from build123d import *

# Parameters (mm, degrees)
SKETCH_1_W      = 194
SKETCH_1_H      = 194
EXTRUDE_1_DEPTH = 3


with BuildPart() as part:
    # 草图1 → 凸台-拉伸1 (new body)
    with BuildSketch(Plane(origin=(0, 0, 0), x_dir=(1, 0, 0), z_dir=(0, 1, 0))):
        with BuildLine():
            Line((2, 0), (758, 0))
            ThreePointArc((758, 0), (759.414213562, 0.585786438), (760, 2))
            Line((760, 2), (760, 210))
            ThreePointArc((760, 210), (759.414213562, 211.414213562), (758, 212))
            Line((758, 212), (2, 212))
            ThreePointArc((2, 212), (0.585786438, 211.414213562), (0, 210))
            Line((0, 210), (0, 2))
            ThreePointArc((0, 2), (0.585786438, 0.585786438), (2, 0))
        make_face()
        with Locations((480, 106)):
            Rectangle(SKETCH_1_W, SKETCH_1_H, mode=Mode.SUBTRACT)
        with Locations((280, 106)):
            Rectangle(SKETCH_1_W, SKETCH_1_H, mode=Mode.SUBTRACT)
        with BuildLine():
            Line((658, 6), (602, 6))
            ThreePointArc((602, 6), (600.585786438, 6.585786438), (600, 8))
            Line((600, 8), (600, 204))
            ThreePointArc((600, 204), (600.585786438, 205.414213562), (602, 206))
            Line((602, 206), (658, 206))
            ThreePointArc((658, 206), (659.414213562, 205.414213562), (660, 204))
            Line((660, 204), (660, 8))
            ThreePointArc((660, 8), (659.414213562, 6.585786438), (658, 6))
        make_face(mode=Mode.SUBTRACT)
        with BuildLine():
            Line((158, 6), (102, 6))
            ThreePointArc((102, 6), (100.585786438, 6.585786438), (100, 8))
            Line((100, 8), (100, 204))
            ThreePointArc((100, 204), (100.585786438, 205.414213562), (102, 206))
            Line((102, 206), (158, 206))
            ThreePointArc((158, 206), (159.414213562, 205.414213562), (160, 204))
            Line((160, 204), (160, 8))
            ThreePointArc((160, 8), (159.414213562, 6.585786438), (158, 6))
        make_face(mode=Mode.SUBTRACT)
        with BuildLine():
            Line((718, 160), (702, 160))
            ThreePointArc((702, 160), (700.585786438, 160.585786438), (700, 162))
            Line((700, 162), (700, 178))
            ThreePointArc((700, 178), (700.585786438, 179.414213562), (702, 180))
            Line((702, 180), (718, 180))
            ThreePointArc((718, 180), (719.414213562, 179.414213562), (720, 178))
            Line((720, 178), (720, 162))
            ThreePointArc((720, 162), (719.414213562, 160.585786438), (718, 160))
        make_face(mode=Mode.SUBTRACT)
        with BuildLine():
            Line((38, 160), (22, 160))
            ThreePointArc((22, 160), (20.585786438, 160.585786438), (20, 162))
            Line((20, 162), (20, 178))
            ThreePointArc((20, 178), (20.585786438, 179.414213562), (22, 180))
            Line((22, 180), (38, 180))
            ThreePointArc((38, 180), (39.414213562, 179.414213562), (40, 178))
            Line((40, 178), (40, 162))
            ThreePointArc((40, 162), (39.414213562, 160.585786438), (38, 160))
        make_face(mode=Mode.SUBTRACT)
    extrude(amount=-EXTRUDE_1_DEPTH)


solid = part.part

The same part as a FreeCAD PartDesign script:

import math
import FreeCAD as App
import Part
import Sketcher

V = App.Vector
Q = App.Units.Quantity


def add_polygon(sketch, points):
    """Adds a closed chain of lines whose ends are joined by coincident constraints."""
    first, n = sketch.GeometryCount, len(points)
    for a, b in zip(points, points[1:] + points[:1]):
        sketch.addGeometry(Part.LineSegment(App.Vector(*a, 0), App.Vector(*b, 0)), False)
    for i in range(n):
        sketch.addConstraint(Sketcher.Constraint("Coincident", first + i, 2, first + (i + 1) % n, 1))

doc = App.newDocument("Part")
body = doc.addObject("PartDesign::Body", "Body")

sketch1 = body.newObject("Sketcher::SketchObject", "Sketch")
sketch1.AttachmentSupport = (doc.getObject("XZ_Plane"), [""])
sketch1.MapMode = "FlatFace"
sketch1.addGeometry(Part.LineSegment(V(2, 0, 0), V(758, 0, 0)), False)
sketch1.addGeometry(Part.ArcOfCircle(Part.Circle(V(758, -2, 0), V(0, 0, 1), 2), math.radians(0), math.radians(90)), False)
sketch1.addGeometry(Part.LineSegment(V(760, -2, 0), V(760, -210, 0)), False)
sketch1.addGeometry(Part.ArcOfCircle(Part.Circle(V(758, -210, 0), V(0, 0, 1), 2), math.radians(-90), math.radians(0)), False)
sketch1.addGeometry(Part.LineSegment(V(758, -212, 0), V(2, -212, 0)), False)
sketch1.addGeometry(Part.ArcOfCircle(Part.Circle(V(2, -210, 0), V(0, 0, 1), 2), math.radians(-180), math.radians(-90)), False)
sketch1.addGeometry(Part.LineSegment(V(0, -210, 0), V(0, -2, 0)), False)
sketch1.addGeometry(Part.ArcOfCircle(Part.Circle(V(2, -2, 0), V(0, 0, 1), 2), math.radians(90), math.radians(180)), False)
sketch1.addGeometry(Part.ArcOfCircle(Part.Circle(V(158, -8, 0), V(0, 0, 1), 2), math.radians(0), math.radians(90)), False)
sketch1.addGeometry(Part.LineSegment(V(158, -6, 0), V(102, -6, 0)), False)
sketch1.addGeometry(Part.ArcOfCircle(Part.Circle(V(102, -8, 0), V(0, 0, 1), 2), math.radians(90), math.radians(180)), False)
sketch1.addGeometry(Part.LineSegment(V(100, -8, 0), V(100, -204, 0)), False)
sketch1.addGeometry(Part.ArcOfCircle(Part.Circle(V(102, -204, 0), V(0, 0, 1), 2), math.radians(-180), math.radians(-90)), False)
sketch1.addGeometry(Part.LineSegment(V(102, -206, 0), V(158, -206, 0)), False)
sketch1.addGeometry(Part.ArcOfCircle(Part.Circle(V(158, -204, 0), V(0, 0, 1), 2), math.radians(-90), math.radians(0)), False)
sketch1.addGeometry(Part.LineSegment(V(160, -204, 0), V(160, -8, 0)), False)
add_polygon(sketch1, [(377, -9), (183, -9), (183, -203), (377, -203)])
sketch1.addGeometry(Part.ArcOfCircle(Part.Circle(V(38, -162, 0), V(0, 0, 1), 2), math.radians(0), math.radians(90)), False)
sketch1.addGeometry(Part.LineSegment(V(38, -160, 0), V(22, -160, 0)), False)
sketch1.addGeometry(Part.ArcOfCircle(Part.Circle(V(22, -162, 0), V(0, 0, 1), 2), math.radians(90), math.radians(180)), False)
sketch1.addGeometry(Part.LineSegment(V(20, -162, 0), V(20, -178, 0)), False)
sketch1.addGeometry(Part.ArcOfCircle(Part.Circle(V(22, -178, 0), V(0, 0, 1), 2), math.radians(-180), math.radians(-90)), False)
sketch1.addGeometry(Part.LineSegment(V(22, -180, 0), V(38, -180, 0)), False)
sketch1.addGeometry(Part.ArcOfCircle(Part.Circle(V(38, -178, 0), V(0, 0, 1), 2), math.radians(-90), math.radians(0)), False)
sketch1.addGeometry(Part.LineSegment(V(40, -178, 0), V(40, -162, 0)), False)
add_polygon(sketch1, [(577, -9), (383, -9), (383, -203), (577, -203)])
sketch1.addGeometry(Part.ArcOfCircle(Part.Circle(V(658, -8, 0), V(0, 0, 1), 2), math.radians(0), math.radians(90)), False)
sketch1.addGeometry(Part.LineSegment(V(658, -6, 0), V(602, -6, 0)), False)
sketch1.addGeometry(Part.ArcOfCircle(Part.Circle(V(602, -8, 0), V(0, 0, 1), 2), math.radians(90), math.radians(180)), False)
sketch1.addGeometry(Part.LineSegment(V(600, -8, 0), V(600, -204, 0)), False)
sketch1.addGeometry(Part.ArcOfCircle(Part.Circle(V(602, -204, 0), V(0, 0, 1), 2), math.radians(-180), math.radians(-90)), False)
sketch1.addGeometry(Part.LineSegment(V(602, -206, 0), V(658, -206, 0)), False)
sketch1.addGeometry(Part.ArcOfCircle(Part.Circle(V(658, -204, 0), V(0, 0, 1), 2), math.radians(-90), math.radians(0)), False)
sketch1.addGeometry(Part.LineSegment(V(660, -204, 0), V(660, -8, 0)), False)
sketch1.addGeometry(Part.ArcOfCircle(Part.Circle(V(718, -162, 0), V(0, 0, 1), 2), math.radians(0), math.radians(90)), False)
sketch1.addGeometry(Part.LineSegment(V(718, -160, 0), V(702, -160, 0)), False)
sketch1.addGeometry(Part.ArcOfCircle(Part.Circle(V(702, -162, 0), V(0, 0, 1), 2), math.radians(90), math.radians(180)), False)
sketch1.addGeometry(Part.LineSegment(V(700, -162, 0), V(700, -178, 0)), False)
sketch1.addGeometry(Part.ArcOfCircle(Part.Circle(V(702, -178, 0), V(0, 0, 1), 2), math.radians(-180), math.radians(-90)), False)
sketch1.addGeometry(Part.LineSegment(V(702, -180, 0), V(718, -180, 0)), False)
sketch1.addGeometry(Part.ArcOfCircle(Part.Circle(V(718, -178, 0), V(0, 0, 1), 2), math.radians(-90), math.radians(0)), False)
sketch1.addGeometry(Part.LineSegment(V(720, -178, 0), V(720, -162, 0)), False)
sketch1.addConstraint([
    Sketcher.Constraint("Tangent", 0, 2, 1, 2),
    Sketcher.Constraint("Tangent", 1, 1, 2, 1),
    Sketcher.Constraint("Tangent", 2, 2, 3, 2),
    Sketcher.Constraint("Tangent", 3, 1, 4, 1),
    Sketcher.Constraint("Tangent", 4, 2, 5, 2),
    Sketcher.Constraint("Tangent", 5, 1, 6, 1),
    Sketcher.Constraint("Tangent", 6, 2, 7, 2),
    Sketcher.Constraint("Tangent", 7, 1, 0, 1),
    Sketcher.Constraint("Tangent", 8, 2, 9, 1),
    Sketcher.Constraint("Tangent", 9, 2, 10, 1),
    Sketcher.Constraint("Tangent", 10, 2, 11, 1),
    Sketcher.Constraint("Tangent", 11, 2, 12, 1),
    Sketcher.Constraint("Tangent", 12, 2, 13, 1),
    Sketcher.Constraint("Tangent", 13, 2, 14, 1),
    Sketcher.Constraint("Tangent", 14, 2, 15, 1),
    Sketcher.Constraint("Tangent", 15, 2, 8, 1),
    Sketcher.Constraint("Tangent", 20, 2, 21, 1),
    Sketcher.Constraint("Tangent", 21, 2, 22, 1),
    Sketcher.Constraint("Tangent", 22, 2, 23, 1),
    Sketcher.Constraint("Tangent", 23, 2, 24, 1),
    Sketcher.Constraint("Tangent", 24, 2, 25, 1),
    Sketcher.Constraint("Tangent", 25, 2, 26, 1),
    Sketcher.Constraint("Tangent", 26, 2, 27, 1),
    Sketcher.Constraint("Tangent", 27, 2, 20, 1),
    Sketcher.Constraint("Tangent", 32, 2, 33, 1),
    Sketcher.Constraint("Tangent", 33, 2, 34, 1),
    Sketcher.Constraint("Tangent", 34, 2, 35, 1),
    Sketcher.Constraint("Tangent", 35, 2, 36, 1),
    Sketcher.Constraint("Tangent", 36, 2, 37, 1),
    Sketcher.Constraint("Tangent", 37, 2, 38, 1),
    Sketcher.Constraint("Tangent", 38, 2, 39, 1),
    Sketcher.Constraint("Tangent", 39, 2, 32, 1),
    Sketcher.Constraint("Tangent", 40, 2, 41, 1),
    Sketcher.Constraint("Tangent", 41, 2, 42, 1),
    Sketcher.Constraint("Tangent", 42, 2, 43, 1),
    Sketcher.Constraint("Tangent", 43, 2, 44, 1),
    Sketcher.Constraint("Tangent", 44, 2, 45, 1),
    Sketcher.Constraint("Tangent", 45, 2, 46, 1),
    Sketcher.Constraint("Tangent", 46, 2, 47, 1),
    Sketcher.Constraint("Tangent", 47, 2, 40, 1),
    Sketcher.Constraint("Horizontal", 0),
    Sketcher.Constraint("Vertical", 2),
    Sketcher.Constraint("Horizontal", 4),
    Sketcher.Constraint("Vertical", 6),
    Sketcher.Constraint("Horizontal", 9),
    Sketcher.Constraint("Vertical", 11),
    Sketcher.Constraint("Horizontal", 13),
    Sketcher.Constraint("Vertical", 15),
    Sketcher.Constraint("Horizontal", 16),
    Sketcher.Constraint("Vertical", 17),
    Sketcher.Constraint("Horizontal", 18),
    Sketcher.Constraint("Vertical", 19),
    Sketcher.Constraint("Horizontal", 21),
    Sketcher.Constraint("Vertical", 23),
    Sketcher.Constraint("Horizontal", 25),
    Sketcher.Constraint("Vertical", 27),
    Sketcher.Constraint("Horizontal", 28),
    Sketcher.Constraint("Vertical", 29),
    Sketcher.Constraint("Horizontal", 30),
    Sketcher.Constraint("Vertical", 31),
    Sketcher.Constraint("Horizontal", 33),
    Sketcher.Constraint("Vertical", 35),
    Sketcher.Constraint("Horizontal", 37),
    Sketcher.Constraint("Vertical", 39),
    Sketcher.Constraint("Horizontal", 41),
    Sketcher.Constraint("Vertical", 43),
    Sketcher.Constraint("Horizontal", 45),
    Sketcher.Constraint("Vertical", 47),
    Sketcher.Constraint("Equal", 1, 3),
    Sketcher.Constraint("Equal", 3, 5),
    Sketcher.Constraint("Equal", 5, 7),
    Sketcher.Constraint("Equal", 7, 8),
    Sketcher.Constraint("Equal", 8, 10),
    Sketcher.Constraint("Equal", 10, 12),
    Sketcher.Constraint("Equal", 12, 14),
    Sketcher.Constraint("Equal", 14, 20),
    Sketcher.Constraint("Equal", 20, 22),
    Sketcher.Constraint("Equal", 22, 24),
    Sketcher.Constraint("Equal", 24, 26),
    Sketcher.Constraint("Equal", 26, 32),
    Sketcher.Constraint("Equal", 32, 34),
    Sketcher.Constraint("Equal", 34, 36),
    Sketcher.Constraint("Equal", 36, 38),
    Sketcher.Constraint("Equal", 38, 40),
    Sketcher.Constraint("Equal", 40, 42),
    Sketcher.Constraint("Equal", 42, 44),
    Sketcher.Constraint("Equal", 44, 46),
    Sketcher.Constraint("PointOnObject", 0, 2, -1),
    Sketcher.Constraint("PointOnObject", 5, 1, -2),
    Sketcher.Constraint("Horizontal", 10, 3, 32, 3),
    Sketcher.Constraint("Horizontal", 14, 3, 36, 3),
    Sketcher.Constraint("Horizontal", 22, 3, 40, 3),
    Sketcher.Constraint("Horizontal", 26, 3, 44, 3),
    Sketcher.Constraint("Horizontal", 19, 2, 28, 2),
    Sketcher.Constraint("Horizontal", 18, 2, 29, 2),
    Sketcher.Constraint("Equal", 18, 28),
    Sketcher.Constraint("Equal", 13, 33),
    Sketcher.Constraint("Equal", 25, 41),
    Sketcher.Constraint("Equal", 30, 17),
    Sketcher.Constraint("Equal", 45, 23),
    Sketcher.Constraint("Radius", 1, Q("2 mm")),
    Sketcher.Constraint("DistanceX", 0, 1, 0, 2, Q("756 mm")),
    Sketcher.Constraint("DistanceX", 9, 2, 9, 1, Q("56 mm")),
    Sketcher.Constraint("DistanceX", 16, 2, 16, 1, Q("194 mm")),
    Sketcher.Constraint("DistanceX", 21, 2, 21, 1, Q("16 mm")),
    Sketcher.Constraint("DistanceY", 2, 2, 2, 1, Q("208 mm")),
    Sketcher.Constraint("DistanceY", 11, 2, 11, 1, Q("196 mm")),
    Sketcher.Constraint("DistanceX", -1, 1, 8, 3, Q("158 mm")),
    Sketcher.Constraint("DistanceY", 8, 3, -1, 1, Q("8 mm")),
    Sketcher.Constraint("DistanceX", -1, 1, 20, 3, Q("38 mm")),
    Sketcher.Constraint("DistanceY", 20, 3, -1, 1, Q("162 mm")),
    Sketcher.Constraint("DistanceX", -1, 1, 32, 3, Q("658 mm")),
    Sketcher.Constraint("DistanceX", -1, 1, 40, 3, Q("718 mm")),
    Sketcher.Constraint("DistanceX", -1, 1, 16, 2, Q("183 mm")),
    Sketcher.Constraint("DistanceY", 16, 2, -1, 1, Q("9 mm")),
    Sketcher.Constraint("DistanceX", -1, 1, 28, 2, Q("383 mm")),
])
pad1 = body.newObject("PartDesign::Pad", "Pad")
pad1.Profile = sketch1
pad1.Length = 3

doc.recompute()
